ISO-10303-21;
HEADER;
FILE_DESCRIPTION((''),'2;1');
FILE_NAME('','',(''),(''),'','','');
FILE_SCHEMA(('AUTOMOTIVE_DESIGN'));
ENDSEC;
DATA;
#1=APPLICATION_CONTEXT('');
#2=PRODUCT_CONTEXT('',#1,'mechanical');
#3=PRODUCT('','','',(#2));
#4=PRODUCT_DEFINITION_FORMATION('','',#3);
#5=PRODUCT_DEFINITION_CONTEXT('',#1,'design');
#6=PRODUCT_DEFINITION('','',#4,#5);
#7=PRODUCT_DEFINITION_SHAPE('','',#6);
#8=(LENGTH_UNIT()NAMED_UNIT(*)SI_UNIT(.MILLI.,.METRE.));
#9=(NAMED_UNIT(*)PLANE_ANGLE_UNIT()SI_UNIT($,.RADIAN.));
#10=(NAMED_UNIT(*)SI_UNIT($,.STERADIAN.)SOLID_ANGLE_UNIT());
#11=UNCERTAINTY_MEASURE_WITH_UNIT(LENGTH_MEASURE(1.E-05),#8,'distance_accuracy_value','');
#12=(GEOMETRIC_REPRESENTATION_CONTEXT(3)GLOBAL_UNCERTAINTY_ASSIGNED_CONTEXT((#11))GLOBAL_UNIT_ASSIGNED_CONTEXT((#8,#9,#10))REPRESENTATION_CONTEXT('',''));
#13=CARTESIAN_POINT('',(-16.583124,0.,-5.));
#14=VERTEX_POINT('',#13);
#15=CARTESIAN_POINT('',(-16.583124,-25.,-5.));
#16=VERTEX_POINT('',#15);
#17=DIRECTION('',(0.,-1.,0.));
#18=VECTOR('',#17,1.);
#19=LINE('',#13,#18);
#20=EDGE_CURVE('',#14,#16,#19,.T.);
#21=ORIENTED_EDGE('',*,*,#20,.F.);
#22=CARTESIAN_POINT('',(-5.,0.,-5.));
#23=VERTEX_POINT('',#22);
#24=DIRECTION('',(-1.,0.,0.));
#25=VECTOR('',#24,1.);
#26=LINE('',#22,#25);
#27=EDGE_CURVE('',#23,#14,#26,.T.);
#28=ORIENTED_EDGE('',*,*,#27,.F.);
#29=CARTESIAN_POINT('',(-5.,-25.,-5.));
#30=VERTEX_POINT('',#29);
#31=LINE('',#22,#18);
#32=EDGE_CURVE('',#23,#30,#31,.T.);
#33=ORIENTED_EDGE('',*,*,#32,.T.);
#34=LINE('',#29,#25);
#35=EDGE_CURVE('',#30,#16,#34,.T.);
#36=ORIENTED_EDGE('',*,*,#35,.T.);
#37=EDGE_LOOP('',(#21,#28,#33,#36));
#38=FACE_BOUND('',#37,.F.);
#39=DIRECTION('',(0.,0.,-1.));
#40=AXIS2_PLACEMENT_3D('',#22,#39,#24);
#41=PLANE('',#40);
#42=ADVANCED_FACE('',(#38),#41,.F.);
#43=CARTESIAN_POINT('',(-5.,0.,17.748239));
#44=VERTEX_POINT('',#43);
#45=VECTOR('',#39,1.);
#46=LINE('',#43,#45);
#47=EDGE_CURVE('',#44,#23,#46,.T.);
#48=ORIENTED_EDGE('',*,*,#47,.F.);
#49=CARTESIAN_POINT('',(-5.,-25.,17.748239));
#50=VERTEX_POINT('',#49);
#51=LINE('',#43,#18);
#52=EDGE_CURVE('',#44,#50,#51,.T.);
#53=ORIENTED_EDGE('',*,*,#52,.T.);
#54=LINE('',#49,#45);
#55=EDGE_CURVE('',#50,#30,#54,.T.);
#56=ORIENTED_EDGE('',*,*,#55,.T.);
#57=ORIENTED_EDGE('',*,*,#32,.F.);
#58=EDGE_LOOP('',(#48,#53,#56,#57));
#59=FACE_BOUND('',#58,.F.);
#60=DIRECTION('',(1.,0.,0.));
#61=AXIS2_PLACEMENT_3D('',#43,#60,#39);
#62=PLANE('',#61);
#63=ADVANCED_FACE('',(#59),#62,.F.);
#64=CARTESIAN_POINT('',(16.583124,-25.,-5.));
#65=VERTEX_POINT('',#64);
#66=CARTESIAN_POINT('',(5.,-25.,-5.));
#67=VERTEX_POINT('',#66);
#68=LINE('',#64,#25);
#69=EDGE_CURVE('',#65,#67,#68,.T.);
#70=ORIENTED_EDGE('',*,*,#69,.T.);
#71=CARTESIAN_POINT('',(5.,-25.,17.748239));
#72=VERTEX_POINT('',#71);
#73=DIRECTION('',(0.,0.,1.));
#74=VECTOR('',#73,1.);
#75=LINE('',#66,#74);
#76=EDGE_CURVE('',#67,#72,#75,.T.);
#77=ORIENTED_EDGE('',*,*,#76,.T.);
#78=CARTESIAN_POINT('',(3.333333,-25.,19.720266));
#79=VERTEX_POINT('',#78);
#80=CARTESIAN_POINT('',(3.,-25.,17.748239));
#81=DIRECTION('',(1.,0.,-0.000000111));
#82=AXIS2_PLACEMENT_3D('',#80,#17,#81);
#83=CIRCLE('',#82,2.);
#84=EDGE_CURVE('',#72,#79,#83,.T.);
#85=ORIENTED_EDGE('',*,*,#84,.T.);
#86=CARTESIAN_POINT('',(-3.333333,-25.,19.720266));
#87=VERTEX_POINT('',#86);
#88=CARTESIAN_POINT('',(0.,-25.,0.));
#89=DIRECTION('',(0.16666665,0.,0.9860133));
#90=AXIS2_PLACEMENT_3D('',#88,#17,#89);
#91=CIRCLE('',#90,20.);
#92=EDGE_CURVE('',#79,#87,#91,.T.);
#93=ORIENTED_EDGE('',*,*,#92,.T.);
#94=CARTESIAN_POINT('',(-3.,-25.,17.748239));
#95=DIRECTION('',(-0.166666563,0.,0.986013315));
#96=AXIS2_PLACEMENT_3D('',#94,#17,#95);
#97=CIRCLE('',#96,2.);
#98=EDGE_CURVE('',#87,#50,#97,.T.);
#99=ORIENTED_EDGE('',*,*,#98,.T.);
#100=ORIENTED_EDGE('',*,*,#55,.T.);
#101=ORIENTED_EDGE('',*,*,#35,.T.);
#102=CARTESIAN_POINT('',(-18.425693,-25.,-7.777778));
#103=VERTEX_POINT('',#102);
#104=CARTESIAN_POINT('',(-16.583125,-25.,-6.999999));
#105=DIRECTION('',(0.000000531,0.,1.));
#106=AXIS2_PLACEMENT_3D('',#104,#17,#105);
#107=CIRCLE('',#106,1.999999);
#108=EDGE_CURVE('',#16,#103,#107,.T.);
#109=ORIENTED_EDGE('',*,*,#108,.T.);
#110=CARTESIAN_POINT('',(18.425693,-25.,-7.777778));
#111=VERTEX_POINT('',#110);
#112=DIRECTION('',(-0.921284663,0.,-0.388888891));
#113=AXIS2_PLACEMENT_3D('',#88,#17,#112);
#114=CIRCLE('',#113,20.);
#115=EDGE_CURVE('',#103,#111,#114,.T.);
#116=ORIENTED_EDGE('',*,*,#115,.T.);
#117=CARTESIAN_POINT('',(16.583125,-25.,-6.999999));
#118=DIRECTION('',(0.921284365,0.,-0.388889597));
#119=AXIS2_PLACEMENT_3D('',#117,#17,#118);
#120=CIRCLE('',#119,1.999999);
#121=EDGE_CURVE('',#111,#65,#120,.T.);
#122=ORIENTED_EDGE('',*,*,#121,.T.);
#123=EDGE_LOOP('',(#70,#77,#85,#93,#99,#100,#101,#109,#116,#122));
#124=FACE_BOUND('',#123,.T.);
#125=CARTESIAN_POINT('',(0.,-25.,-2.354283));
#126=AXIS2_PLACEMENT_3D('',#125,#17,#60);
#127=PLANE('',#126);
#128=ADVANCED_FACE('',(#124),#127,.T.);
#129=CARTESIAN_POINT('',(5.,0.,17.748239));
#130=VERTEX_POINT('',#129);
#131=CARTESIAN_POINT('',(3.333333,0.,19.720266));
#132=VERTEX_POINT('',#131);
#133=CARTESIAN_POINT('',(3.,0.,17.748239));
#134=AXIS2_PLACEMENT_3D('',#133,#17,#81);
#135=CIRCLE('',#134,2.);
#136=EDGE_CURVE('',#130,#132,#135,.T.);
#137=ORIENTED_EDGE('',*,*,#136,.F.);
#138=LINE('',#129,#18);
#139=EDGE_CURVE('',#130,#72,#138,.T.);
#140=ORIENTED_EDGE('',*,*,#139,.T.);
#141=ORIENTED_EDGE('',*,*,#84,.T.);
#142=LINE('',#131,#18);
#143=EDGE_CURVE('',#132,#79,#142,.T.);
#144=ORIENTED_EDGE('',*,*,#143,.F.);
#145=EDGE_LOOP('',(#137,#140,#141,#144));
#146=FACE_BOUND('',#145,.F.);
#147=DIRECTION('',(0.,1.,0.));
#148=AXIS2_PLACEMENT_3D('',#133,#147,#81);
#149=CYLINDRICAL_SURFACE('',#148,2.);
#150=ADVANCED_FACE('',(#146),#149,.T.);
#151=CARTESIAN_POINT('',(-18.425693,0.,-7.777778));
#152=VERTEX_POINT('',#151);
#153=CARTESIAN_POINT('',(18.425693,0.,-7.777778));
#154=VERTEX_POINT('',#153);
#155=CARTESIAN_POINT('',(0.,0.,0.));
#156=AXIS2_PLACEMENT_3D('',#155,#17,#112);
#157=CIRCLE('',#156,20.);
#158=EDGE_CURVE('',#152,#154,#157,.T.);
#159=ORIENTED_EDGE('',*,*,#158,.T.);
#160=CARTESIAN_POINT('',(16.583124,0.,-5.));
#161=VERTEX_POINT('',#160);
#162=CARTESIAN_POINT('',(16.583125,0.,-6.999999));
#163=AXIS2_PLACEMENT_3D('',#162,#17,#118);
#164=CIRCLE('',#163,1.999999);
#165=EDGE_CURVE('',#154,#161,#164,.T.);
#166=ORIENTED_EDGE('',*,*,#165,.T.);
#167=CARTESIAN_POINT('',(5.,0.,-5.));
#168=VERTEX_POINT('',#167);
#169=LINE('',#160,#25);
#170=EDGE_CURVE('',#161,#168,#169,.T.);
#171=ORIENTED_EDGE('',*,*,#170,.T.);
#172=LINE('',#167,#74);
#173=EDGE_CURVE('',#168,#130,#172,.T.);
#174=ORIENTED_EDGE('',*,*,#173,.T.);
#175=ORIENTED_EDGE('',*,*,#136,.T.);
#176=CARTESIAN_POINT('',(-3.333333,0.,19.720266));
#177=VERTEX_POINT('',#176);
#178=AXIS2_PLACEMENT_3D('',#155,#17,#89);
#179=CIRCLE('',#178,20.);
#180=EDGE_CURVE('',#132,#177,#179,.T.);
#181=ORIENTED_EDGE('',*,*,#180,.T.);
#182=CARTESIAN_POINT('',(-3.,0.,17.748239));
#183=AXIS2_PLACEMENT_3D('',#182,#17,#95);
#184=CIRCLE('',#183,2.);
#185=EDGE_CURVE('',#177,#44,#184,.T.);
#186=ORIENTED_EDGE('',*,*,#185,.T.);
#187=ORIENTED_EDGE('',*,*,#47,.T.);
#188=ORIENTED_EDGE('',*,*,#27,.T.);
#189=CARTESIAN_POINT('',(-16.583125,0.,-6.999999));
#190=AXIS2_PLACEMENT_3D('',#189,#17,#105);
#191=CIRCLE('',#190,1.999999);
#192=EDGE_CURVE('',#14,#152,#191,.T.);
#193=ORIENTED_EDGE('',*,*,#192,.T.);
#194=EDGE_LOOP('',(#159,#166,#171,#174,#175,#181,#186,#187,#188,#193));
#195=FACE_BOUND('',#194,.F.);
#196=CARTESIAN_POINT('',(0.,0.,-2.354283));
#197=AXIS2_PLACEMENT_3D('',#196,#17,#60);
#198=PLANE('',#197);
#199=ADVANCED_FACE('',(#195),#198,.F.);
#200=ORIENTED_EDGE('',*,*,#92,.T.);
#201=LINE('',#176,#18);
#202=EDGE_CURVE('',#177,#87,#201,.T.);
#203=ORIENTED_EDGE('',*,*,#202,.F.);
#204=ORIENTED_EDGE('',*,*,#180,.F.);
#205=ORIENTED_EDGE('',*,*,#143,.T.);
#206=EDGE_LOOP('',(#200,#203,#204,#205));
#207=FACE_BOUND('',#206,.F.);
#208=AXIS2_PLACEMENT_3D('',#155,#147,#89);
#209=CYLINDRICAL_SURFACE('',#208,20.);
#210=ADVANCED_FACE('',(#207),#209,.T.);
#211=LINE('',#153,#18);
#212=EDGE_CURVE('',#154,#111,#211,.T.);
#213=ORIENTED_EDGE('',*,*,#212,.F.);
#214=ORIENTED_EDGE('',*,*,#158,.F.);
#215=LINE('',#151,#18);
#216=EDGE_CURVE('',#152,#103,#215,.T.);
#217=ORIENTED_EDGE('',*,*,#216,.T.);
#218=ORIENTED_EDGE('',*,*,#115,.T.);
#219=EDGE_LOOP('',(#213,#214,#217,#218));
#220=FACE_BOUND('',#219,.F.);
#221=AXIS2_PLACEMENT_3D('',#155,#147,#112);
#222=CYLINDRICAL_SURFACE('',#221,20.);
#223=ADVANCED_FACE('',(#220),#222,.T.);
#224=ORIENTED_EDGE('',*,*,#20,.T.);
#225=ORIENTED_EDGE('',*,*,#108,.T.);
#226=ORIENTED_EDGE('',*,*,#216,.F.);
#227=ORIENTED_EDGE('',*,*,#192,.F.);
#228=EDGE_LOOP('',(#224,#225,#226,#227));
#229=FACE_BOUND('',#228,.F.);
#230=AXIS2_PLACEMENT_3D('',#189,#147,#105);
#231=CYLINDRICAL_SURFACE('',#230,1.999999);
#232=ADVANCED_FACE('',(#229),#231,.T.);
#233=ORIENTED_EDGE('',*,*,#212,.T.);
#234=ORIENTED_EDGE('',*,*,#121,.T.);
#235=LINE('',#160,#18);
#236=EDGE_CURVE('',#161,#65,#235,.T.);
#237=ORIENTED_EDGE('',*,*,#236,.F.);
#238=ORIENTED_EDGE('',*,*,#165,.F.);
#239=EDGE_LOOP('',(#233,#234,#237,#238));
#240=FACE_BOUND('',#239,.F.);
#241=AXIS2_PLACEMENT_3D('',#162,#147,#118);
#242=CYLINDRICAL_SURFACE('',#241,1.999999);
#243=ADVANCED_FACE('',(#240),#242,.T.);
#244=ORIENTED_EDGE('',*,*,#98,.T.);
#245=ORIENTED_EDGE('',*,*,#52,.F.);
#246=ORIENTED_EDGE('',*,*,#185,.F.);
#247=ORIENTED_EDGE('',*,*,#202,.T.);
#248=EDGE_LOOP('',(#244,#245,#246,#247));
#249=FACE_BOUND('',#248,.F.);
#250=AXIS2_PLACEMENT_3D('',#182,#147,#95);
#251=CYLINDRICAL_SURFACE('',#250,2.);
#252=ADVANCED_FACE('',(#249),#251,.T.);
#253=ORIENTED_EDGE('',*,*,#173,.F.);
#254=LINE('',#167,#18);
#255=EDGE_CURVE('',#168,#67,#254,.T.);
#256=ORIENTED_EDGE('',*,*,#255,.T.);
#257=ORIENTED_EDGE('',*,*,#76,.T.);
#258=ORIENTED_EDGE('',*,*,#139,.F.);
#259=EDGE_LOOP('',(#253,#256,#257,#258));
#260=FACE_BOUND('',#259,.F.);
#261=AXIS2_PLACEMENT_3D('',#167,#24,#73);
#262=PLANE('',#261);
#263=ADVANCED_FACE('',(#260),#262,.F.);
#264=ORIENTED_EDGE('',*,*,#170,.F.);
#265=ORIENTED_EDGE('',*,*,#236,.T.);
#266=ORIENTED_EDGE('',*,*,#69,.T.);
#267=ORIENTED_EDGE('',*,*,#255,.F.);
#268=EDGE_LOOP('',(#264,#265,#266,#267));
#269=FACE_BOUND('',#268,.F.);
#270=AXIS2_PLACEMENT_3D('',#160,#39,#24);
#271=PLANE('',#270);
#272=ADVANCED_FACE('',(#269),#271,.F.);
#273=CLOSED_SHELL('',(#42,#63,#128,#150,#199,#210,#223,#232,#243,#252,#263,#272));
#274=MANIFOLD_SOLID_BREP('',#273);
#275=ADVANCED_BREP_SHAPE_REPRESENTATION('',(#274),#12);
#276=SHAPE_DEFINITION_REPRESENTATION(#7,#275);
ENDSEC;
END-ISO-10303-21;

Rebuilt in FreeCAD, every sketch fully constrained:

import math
import FreeCAD as App
import Part
import Sketcher

V = App.Vector

doc = App.newDocument("Part")
body = doc.addObject("PartDesign::Body", "Body")

# Sketch on XZ plane
sketch1 = doc.addObject("Sketcher::SketchObject", "Sketch")
body.addObject(sketch1)
sketch1.AttachmentSupport = (doc.XZ_Plane, [""])
sketch1.MapMode = "FlatFace"
sketch1.addGeometry([
    Part.ArcOfCircle(Part.Circle(V(3, 17.7, 0), V(0, 0, 1), 2), math.radians(0), math.radians(80)),  # 0
    Part.ArcOfCircle(Part.Circle(V(0, 0, 0), V(0, 0, 1), 20), math.radians(80.41), math.radians(99.59)),  # 1
    Part.ArcOfCircle(Part.Circle(V(-3, 17.7, 0), V(0, 0, 1), 2), math.radians(100), math.radians(180)),  # 2
    Part.LineSegment(V(-5, 17.7, 0), V(-5, -5, 0)),  # 3
    Part.LineSegment(V(-5, -5, 0), V(-16.6, -5, 0)),  # 4
    Part.ArcOfCircle(Part.Circle(V(-16.6, -7, 0), V(0, 0, 1), 2), math.radians(90), math.radians(203)),  # 5
    Part.ArcOfCircle(Part.Circle(V(0, 0, 0), V(0, 0, 1), 20), math.radians(-157), math.radians(-23)),  # 6
    Part.ArcOfCircle(Part.Circle(V(16.6, -7, 0), V(0, 0, 1), 2), math.radians(-23), math.radians(90)),  # 7
    Part.LineSegment(V(16.6, -5, 0), V(5, -5, 0)),  # 8
    Part.LineSegment(V(5, -5, 0), V(5, 17.7, 0)),  # 9
], False)
sketch1.addConstraint([
    Sketcher.Constraint("Tangent", 0, 2, 1, 1),
    Sketcher.Constraint("Tangent", 1, 2, 2, 1),
    Sketcher.Constraint("Tangent", 2, 2, 3, 1),
    Sketcher.Constraint("Coincident", 3, 2, 4, 1),
    Sketcher.Constraint("Tangent", 4, 2, 5, 1),
    Sketcher.Constraint("Tangent", 5, 2, 6, 1),
    Sketcher.Constraint("Tangent", 6, 2, 7, 1),
    Sketcher.Constraint("Tangent", 7, 2, 8, 1),
    Sketcher.Constraint("Coincident", 8, 2, 9, 1),
    Sketcher.Constraint("Tangent", 9, 2, 0, 1),
    Sketcher.Constraint("Vertical", 3),
    Sketcher.Constraint("Horizontal", 4),
    Sketcher.Constraint("Horizontal", 8),
    Sketcher.Constraint("Vertical", 9),
    Sketcher.Constraint("Coincident", 1, 3, -1, 1),
    Sketcher.Constraint("Coincident", 6, 3, -1, 1),
    Sketcher.Constraint("Equal", 0, 2),
    Sketcher.Constraint("Equal", 2, 5),
    Sketcher.Constraint("Equal", 1, 6),
    Sketcher.Constraint("Equal", 5, 7),
    Sketcher.Constraint("Symmetric", 3, 2, 8, 2, -2),
    Sketcher.Constraint("Radius", 0, 2.0),
    Sketcher.Constraint("Radius", 1, 20.0),
    Sketcher.Constraint("DistanceX", -1, 1, 0, 3, 3.0),
    Sketcher.Constraint("DistanceY", 5, 3, -1, 1, 6.999999),
])
pad1 = doc.addObject("PartDesign::Pad", "Pad")
body.addObject(pad1)
pad1.Profile = sketch1
pad1.Length = 25

doc.recompute()
